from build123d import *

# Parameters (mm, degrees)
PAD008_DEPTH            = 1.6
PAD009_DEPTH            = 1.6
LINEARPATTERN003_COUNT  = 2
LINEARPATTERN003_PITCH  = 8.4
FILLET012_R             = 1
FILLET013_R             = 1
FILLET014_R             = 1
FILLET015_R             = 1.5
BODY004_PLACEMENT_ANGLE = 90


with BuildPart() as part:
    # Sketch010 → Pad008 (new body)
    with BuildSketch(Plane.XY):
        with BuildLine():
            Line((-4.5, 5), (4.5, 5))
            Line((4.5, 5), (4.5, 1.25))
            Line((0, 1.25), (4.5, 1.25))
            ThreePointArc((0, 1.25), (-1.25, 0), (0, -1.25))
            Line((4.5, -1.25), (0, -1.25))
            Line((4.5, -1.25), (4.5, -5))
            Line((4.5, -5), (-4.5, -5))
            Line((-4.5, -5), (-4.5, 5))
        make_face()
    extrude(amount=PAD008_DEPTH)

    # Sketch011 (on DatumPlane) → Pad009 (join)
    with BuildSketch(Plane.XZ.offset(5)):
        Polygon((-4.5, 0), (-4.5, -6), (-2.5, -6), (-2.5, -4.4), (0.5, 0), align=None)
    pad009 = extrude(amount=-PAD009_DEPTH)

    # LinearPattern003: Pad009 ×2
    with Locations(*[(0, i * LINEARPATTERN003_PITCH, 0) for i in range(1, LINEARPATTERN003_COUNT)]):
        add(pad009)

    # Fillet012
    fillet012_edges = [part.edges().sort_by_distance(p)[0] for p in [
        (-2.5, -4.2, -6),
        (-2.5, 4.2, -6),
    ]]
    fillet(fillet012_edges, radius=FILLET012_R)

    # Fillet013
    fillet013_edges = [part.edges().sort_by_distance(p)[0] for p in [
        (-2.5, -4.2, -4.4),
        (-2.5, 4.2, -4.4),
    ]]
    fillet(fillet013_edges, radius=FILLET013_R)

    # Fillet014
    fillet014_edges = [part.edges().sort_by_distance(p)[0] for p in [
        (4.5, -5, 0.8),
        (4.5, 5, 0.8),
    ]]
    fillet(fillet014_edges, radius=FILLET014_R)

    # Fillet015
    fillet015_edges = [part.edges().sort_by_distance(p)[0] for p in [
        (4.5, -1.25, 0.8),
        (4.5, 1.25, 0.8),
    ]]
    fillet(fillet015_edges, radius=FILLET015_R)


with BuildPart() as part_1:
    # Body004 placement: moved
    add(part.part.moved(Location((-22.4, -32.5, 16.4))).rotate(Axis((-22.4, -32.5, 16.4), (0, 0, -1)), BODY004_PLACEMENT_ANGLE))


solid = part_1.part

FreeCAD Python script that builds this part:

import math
import FreeCAD as App
import Part
import Sketcher
Q = App.Units.Quantity


def edges_at(feature, points):
    """Names of the edges that pass closest to the given points."""
    edges = feature.Shape.Edges
    near = lambda p: min(range(len(edges)), key=lambda i: edges[i].distToShape(Part.Vertex(*p))[0])
    return sorted({f"Edge{near(p) + 1}" for p in points})

doc = App.newDocument("Part")
body = doc.addObject("PartDesign::Body", "Body")

# Sketch on XY plane
sketch1 = body.newObject("Sketcher::SketchObject", "Sketch")
sketch1.AttachmentSupport = (doc.getObject("XY_Plane"), [""])
sketch1.MapMode = "FlatFace"
sketch1.addGeometry([
    Part.LineSegment(App.Vector(4.5, 5, 0), App.Vector(-4.5, 5, 0)),  # 0
    Part.LineSegment(App.Vector(-4.5, 5, 0), App.Vector(-4.5, -5, 0)),  # 1
    Part.LineSegment(App.Vector(-4.5, -5, 0), App.Vector(4.5, -5, 0)),  # 2
    Part.LineSegment(App.Vector(4.5, -5, 0), App.Vector(4.5, -1.25, 0)),  # 3
    Part.LineSegment(App.Vector(4.5, -1.25, 0), App.Vector(0, -1.25, 0)),  # 4
    Part.ArcOfCircle(Part.Circle(App.Vector(0, 0, 0), App.Vector(0, 0, 1), 1.25), math.radians(90), math.radians(270)),  # 5
    Part.LineSegment(App.Vector(0, 1.25, 0), App.Vector(4.5, 1.25, 0)),  # 6
    Part.LineSegment(App.Vector(4.5, 1.25, 0), App.Vector(4.5, 5, 0)),  # 7
], False)
sketch1.addConstraint([
    Sketcher.Constraint("Coincident", 0, 2, 1, 1),
    Sketcher.Constraint("Coincident", 1, 2, 2, 1),
    Sketcher.Constraint("Coincident", 2, 2, 3, 1),
    Sketcher.Constraint("Coincident", 3, 2, 4, 1),
    Sketcher.Constraint("Tangent", 4, 2, 5, 2),
    Sketcher.Constraint("Tangent", 5, 1, 6, 1),
    Sketcher.Constraint("Coincident", 6, 2, 7, 1),
    Sketcher.Constraint("Coincident", 7, 2, 0, 1),
    Sketcher.Constraint("Horizontal", 0),
    Sketcher.Constraint("Vertical", 1),
    Sketcher.Constraint("Horizontal", 2),
    Sketcher.Constraint("Vertical", 3),
    Sketcher.Constraint("Horizontal", 4),
    Sketcher.Constraint("Horizontal", 6),
    Sketcher.Constraint("Vertical", 7),
    Sketcher.Constraint("Coincident", 5, 3, -1, 1),
    Sketcher.Constraint("Symmetric", 0, 2, 2, 2, -1, 1),
    Sketcher.Constraint("Vertical", 3, 2, 6, 2),
    Sketcher.Constraint("DistanceX", 0, 2, 0, 1, Q("9 mm")),
    Sketcher.Constraint("DistanceY", 1, 2, 1, 1, Q("10 mm")),
    Sketcher.Constraint("Radius", 5, Q("1.25 mm")),
])
pad1 = body.newObject("PartDesign::Pad", "Pad")
pad1.Profile = sketch1
pad1.Length = 1.6

# Sketch on XZ plane
sketch2 = body.newObject("Sketcher::SketchObject", "Sketch001")
sketch2.AttachmentSupport = (doc.getObject("XZ_Plane"), [""])
sketch2.MapMode = "FlatFace"
sketch2.AttachmentOffset = App.Placement(App.Vector(0, 0, 5), App.Rotation())
sketch2.addGeometry([
    Part.LineSegment(App.Vector(-4.5, 0, 0), App.Vector(-4.5, -6, 0)),  # 0
    Part.LineSegment(App.Vector(-4.5, -6, 0), App.Vector(-2.5, -6, 0)),  # 1
    Part.LineSegment(App.Vector(-2.5, -6, 0), App.Vector(-2.5, -4.4, 0)),  # 2
    Part.LineSegment(App.Vector(-2.5, -4.4, 0), App.Vector(0.5, 0, 0)),  # 3
    Part.LineSegment(App.Vector(0.5, 0, 0), App.Vector(-4.5, 0, 0)),  # 4
], False)
sketch2.addConstraint([
    Sketcher.Constraint("Coincident", 0, 2, 1, 1),
    Sketcher.Constraint("Coincident", 1, 2, 2, 1),
    Sketcher.Constraint("Coincident", 2, 2, 3, 1),
    Sketcher.Constraint("Coincident", 3, 2, 4, 1),
    Sketcher.Constraint("Coincident", 4, 2, 0, 1),
    Sketcher.Constraint("Vertical", 0),
    Sketcher.Constraint("Horizontal", 1),
    Sketcher.Constraint("Vertical", 2),
    Sketcher.Constraint("Horizontal", 4),
    Sketcher.Constraint("PointOnObject", 3, 2, -1),
    Sketcher.Constraint("DistanceX", 1, 1, 1, 2, Q("2 mm")),
    Sketcher.Constraint("DistanceX", 4, 2, 4, 1, Q("5 mm")),
    Sketcher.Constraint("DistanceY", 0, 2, 0, 1, Q("6 mm")),
    Sketcher.Constraint("DistanceY", 2, 1, 2, 2, Q("1.6 mm")),
    Sketcher.Constraint("DistanceX", 0, 2, -1, 1, Q("4.5 mm")),
])
pad2 = body.newObject("PartDesign::Pad", "Pad001")
pad2.Profile = sketch2
pad2.Length = 1.6
pad2.Reversed = True
doc.recompute()

linearpattern = body.newObject("PartDesign::LinearPattern", "LinearPattern")
linearpattern.Originals = [pad2]
linearpattern.Direction = (doc.getObject("Y_Axis"), [""])
linearpattern.Mode = "offset"
linearpattern.Offset = 8.4
linearpattern.Occurrences = 2
body.Tip = linearpattern
doc.recompute()

fillet = body.newObject("PartDesign::Fillet", "Fillet")
fillet.Base = (linearpattern, edges_at(linearpattern, [(-2.5, -4.2, -6), (-2.5, 4.2, -6)]))
fillet.Radius = 1
doc.recompute()

fillet2 = body.newObject("PartDesign::Fillet", "Fillet001")
fillet2.Base = (fillet, edges_at(fillet, [(-2.5, -4.2, -4.4), (-2.5, 4.2, -4.4)]))
fillet2.Radius = 1
doc.recompute()

fillet3 = body.newObject("PartDesign::Fillet", "Fillet002")
fillet3.Base = (fillet2, edges_at(fillet2, [(4.5, -5, 0.8), (4.5, 5, 0.8)]))
fillet3.Radius = 1
doc.recompute()

fillet4 = body.newObject("PartDesign::Fillet", "Fillet003")
fillet4.Base = (fillet3, edges_at(fillet3, [(4.5, -1.25, 0.8), (4.5, 1.25, 0.8)]))
fillet4.Radius = 1.5
body2 = doc.addObject("PartDesign::Body", "Body001")
doc.recompute()

body.Placement = App.Placement(App.Vector(-22.4, -32.5, 16.4), App.Rotation(App.Vector(0, 0, -1), 90))
boolean = body2.newObject("PartDesign::Boolean", "Boolean")
boolean.Type = "Fuse"
boolean.addObjects([body])

doc.recompute()
